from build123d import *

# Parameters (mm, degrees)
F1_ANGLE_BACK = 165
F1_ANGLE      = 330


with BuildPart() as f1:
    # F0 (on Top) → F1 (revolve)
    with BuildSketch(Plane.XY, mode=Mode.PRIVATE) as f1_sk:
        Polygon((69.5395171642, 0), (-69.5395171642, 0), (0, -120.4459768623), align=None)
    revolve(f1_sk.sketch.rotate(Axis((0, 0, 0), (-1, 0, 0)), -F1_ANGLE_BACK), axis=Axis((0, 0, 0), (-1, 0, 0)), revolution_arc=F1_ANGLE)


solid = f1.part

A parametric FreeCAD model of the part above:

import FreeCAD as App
import Part
import Sketcher
Q = App.Units.Quantity

doc = App.newDocument("Part")
body = doc.addObject("PartDesign::Body", "Body")

# Sketch on an angled plane
sketch1 = body.newObject("Sketcher::SketchObject", "Sketch")
sketch1.Placement = App.Placement(App.Vector(0, 0, 0), App.Rotation(App.Vector(1, 0, 0), App.Vector(0, -0.965925826, 0.258819045), App.Vector(0, -0.258819045, -0.965925826), "ZXY"))
sketch1.addGeometry([
    Part.LineSegment(App.Vector(70, 0, 0), App.Vector(-70, 0, 0)),
    Part.LineSegment(App.Vector(-70, 0, 0), App.Vector(0, -120, 0)),
    Part.LineSegment(App.Vector(0, -120, 0), App.Vector(70, 0, 0)),
], False)
sketch1.addConstraint([
    Sketcher.Constraint("Coincident", 0, 2, 1, 1),
    Sketcher.Constraint("Coincident", 1, 2, 2, 1),
    Sketcher.Constraint("Coincident", 2, 2, 0, 1),
    Sketcher.Constraint("Horizontal", 0),
    Sketcher.Constraint("Symmetric", 0, 2, 2, 2, -1, 1),
    Sketcher.Constraint("PointOnObject", 1, 2, -2),
    Sketcher.Constraint("Angle", 1, Q("-60 deg")),
    Sketcher.Constraint("DistanceX", 0, 2, 0, 1, 139.079034),
])
revolution = body.newObject("PartDesign::Revolution", "Revolution")
revolution.Profile = sketch1
revolution.ReferenceAxis = (sketch1, ["H_Axis"])
revolution.Angle = 330
revolution.Reversed = True

doc.recompute()
